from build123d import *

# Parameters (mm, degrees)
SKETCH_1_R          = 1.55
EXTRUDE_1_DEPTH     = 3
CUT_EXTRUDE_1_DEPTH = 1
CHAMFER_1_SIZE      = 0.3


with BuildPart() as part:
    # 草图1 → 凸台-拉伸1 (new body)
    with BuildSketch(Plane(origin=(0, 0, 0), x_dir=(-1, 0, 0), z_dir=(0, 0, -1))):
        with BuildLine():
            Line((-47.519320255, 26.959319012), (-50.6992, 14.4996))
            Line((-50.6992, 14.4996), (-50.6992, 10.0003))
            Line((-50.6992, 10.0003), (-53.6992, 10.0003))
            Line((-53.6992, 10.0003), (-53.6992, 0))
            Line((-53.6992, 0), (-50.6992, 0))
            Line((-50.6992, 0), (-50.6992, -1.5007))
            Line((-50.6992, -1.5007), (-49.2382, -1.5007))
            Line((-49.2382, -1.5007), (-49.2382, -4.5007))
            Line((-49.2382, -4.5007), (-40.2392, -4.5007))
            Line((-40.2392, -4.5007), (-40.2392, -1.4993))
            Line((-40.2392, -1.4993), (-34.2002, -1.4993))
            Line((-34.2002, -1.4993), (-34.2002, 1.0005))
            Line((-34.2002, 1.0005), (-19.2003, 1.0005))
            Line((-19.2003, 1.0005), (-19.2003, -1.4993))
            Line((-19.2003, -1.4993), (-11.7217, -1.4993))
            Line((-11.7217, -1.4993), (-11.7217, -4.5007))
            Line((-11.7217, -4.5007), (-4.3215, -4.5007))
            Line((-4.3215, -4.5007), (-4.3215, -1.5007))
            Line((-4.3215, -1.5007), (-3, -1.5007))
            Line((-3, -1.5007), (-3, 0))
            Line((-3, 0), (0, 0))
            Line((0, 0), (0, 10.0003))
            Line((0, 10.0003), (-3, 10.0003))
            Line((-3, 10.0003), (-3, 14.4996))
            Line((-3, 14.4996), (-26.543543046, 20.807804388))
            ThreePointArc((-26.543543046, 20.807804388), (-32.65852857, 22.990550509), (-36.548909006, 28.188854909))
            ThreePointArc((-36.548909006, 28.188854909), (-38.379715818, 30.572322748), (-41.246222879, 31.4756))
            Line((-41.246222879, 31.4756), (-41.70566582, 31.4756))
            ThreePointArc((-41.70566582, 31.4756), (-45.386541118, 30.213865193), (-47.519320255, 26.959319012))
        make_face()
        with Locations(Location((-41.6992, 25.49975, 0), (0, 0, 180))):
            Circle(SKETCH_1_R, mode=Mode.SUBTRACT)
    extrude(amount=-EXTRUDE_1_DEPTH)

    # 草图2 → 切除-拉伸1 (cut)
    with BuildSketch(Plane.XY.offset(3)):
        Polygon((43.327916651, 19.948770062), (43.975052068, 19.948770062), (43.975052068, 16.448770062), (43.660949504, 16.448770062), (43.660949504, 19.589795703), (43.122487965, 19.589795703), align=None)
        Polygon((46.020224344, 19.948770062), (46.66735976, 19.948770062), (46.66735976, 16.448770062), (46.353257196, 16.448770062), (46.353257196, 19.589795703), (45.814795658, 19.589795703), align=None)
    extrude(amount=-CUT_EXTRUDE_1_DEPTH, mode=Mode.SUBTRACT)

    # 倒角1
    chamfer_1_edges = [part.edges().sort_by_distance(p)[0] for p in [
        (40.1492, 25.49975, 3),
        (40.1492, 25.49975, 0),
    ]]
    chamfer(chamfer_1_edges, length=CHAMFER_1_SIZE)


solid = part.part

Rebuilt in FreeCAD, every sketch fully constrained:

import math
import FreeCAD as App
import Part
import Sketcher
from FreeCAD import Vector
Q = App.Units.Quantity


def edges_at(feature, points):
    """Names of the edges that pass closest to the given points."""
    edges = feature.Shape.Edges
    near = lambda p: min(range(len(edges)), key=lambda i: edges[i].distToShape(Part.Vertex(*p))[0])
    return sorted({f"Edge{near(p) + 1}" for p in points})


def add_polygon(sketch, points):
    """Adds a closed chain of lines whose ends are joined by coincident constraints."""
    first, n = sketch.GeometryCount, len(points)
    for a, b in zip(points, points[1:] + points[:1]):
        sketch.addGeometry(Part.LineSegment(App.Vector(*a, 0), App.Vector(*b, 0)), False)
    for i in range(n):
        sketch.addConstraint(Sketcher.Constraint("Coincident", first + i, 2, first + (i + 1) % n, 1))

doc = App.newDocument("Part")
body = doc.addObject("PartDesign::Body", "Body")

# Sketch on XY plane
sketch1 = body.newObject("Sketcher::SketchObject", "Sketch")
sketch1.AttachmentSupport = (doc.getObject("XY_Plane"), [""])
sketch1.MapMode = "FlatFace"
sketch1.addGeometry(Part.LineSegment(Vector(47.52, 26.96, 0), Vector(50.7, 14.5, 0)), False)
sketch1.addGeometry(Part.LineSegment(Vector(50.7, 14.5, 0), Vector(50.7, 10, 0)), False)
sketch1.addGeometry(Part.LineSegment(Vector(50.7, 10, 0), Vector(53.7, 10, 0)), False)
sketch1.addGeometry(Part.LineSegment(Vector(53.7, 10, 0), Vector(53.7, 0, 0)), False)
sketch1.addGeometry(Part.LineSegment(Vector(53.7, 0, 0), Vector(50.7, 0, 0)), False)
sketch1.addGeometry(Part.LineSegment(Vector(50.7, 0, 0), Vector(50.7, -1.5, 0)), False)
sketch1.addGeometry(Part.LineSegment(Vector(50.7, -1.5, 0), Vector(49.24, -1.5, 0)), False)
sketch1.addGeometry(Part.LineSegment(Vector(49.24, -1.5, 0), Vector(49.24, -4.5, 0)), False)
sketch1.addGeometry(Part.LineSegment(Vector(49.24, -4.5, 0), Vector(40.24, -4.5, 0)), False)
sketch1.addGeometry(Part.LineSegment(Vector(40.24, -4.5, 0), Vector(40.24, -1.5, 0)), False)
sketch1.addGeometry(Part.LineSegment(Vector(40.24, -1.5, 0), Vector(34.2, -1.5, 0)), False)
sketch1.addGeometry(Part.LineSegment(Vector(34.2, -1.5, 0), Vector(34.2, 1, 0)), False)
sketch1.addGeometry(Part.LineSegment(Vector(34.2, 1, 0), Vector(19.2, 1, 0)), False)
sketch1.addGeometry(Part.LineSegment(Vector(19.2, 1, 0), Vector(19.2, -1.5, 0)), False)
sketch1.addGeometry(Part.LineSegment(Vector(19.2, -1.5, 0), Vector(11.72, -1.5, 0)), False)
sketch1.addGeometry(Part.LineSegment(Vector(11.72, -1.5, 0), Vector(11.72, -4.5, 0)), False)
sketch1.addGeometry(Part.LineSegment(Vector(11.72, -4.5, 0), Vector(4.32, -4.5, 0)), False)
sketch1.addGeometry(Part.LineSegment(Vector(4.32, -4.5, 0), Vector(4.32, -1.5, 0)), False)
sketch1.addGeometry(Part.LineSegment(Vector(4.32, -1.5, 0), Vector(3, -1.5, 0)), False)
sketch1.addGeometry(Part.LineSegment(Vector(3, -1.5, 0), Vector(3, 0, 0)), False)
sketch1.addGeometry(Part.LineSegment(Vector(3, 0, 0), Vector(0, 0, 0)), False)
sketch1.addGeometry(Part.LineSegment(Vector(0, 0, 0), Vector(0, 10, 0)), False)
sketch1.addGeometry(Part.LineSegment(Vector(0, 10, 0), Vector(3, 10, 0)), False)
sketch1.addGeometry(Part.LineSegment(Vector(3, 10, 0), Vector(3, 14.5, 0)), False)
sketch1.addGeometry(Part.LineSegment(Vector(3, 14.5, 0), Vector(26.54, 20.81, 0)), False)
sketch1.addGeometry(Part.ArcOfCircle(Part.Circle(Vector(25.98, 32.04, 0), Vector(0, 0, 1), 11.25), math.radians(-87), math.radians(-20)), False)
sketch1.addGeometry(Part.ArcOfCircle(Part.Circle(Vector(41.25, 26.48, 0), Vector(0, 0, 1), 5), math.radians(90), math.radians(160)), False)
sketch1.addGeometry(Part.LineSegment(Vector(41.25, 31.48, 0), Vector(41.71, 31.48, 0)), False)
sketch1.addGeometry(Part.ArcOfCircle(Part.Circle(Vector(41.71, 25.48, 0), Vector(0, 0, 1), 6), math.radians(14), math.radians(90)), False)
sketch1.addGeometry(Part.Circle(Vector(41.7, 25.5, 0), Vector(0, 0, 1), 1.55), False)
sketch1.addConstraint(Sketcher.Constraint("Coincident", 0, 2, 1, 1))
sketch1.addConstraint(Sketcher.Constraint("Coincident", 1, 2, 2, 1))
sketch1.addConstraint(Sketcher.Constraint("Coincident", 2, 2, 3, 1))
sketch1.addConstraint(Sketcher.Constraint("Coincident", 3, 2, 4, 1))
sketch1.addConstraint(Sketcher.Constraint("Coincident", 4, 2, 5, 1))
sketch1.addConstraint(Sketcher.Constraint("Coincident", 5, 2, 6, 1))
sketch1.addConstraint(Sketcher.Constraint("Coincident", 6, 2, 7, 1))
sketch1.addConstraint(Sketcher.Constraint("Coincident", 7, 2, 8, 1))
sketch1.addConstraint(Sketcher.Constraint("Coincident", 8, 2, 9, 1))
sketch1.addConstraint(Sketcher.Constraint("Coincident", 9, 2, 10, 1))
sketch1.addConstraint(Sketcher.Constraint("Coincident", 10, 2, 11, 1))
sketch1.addConstraint(Sketcher.Constraint("Coincident", 11, 2, 12, 1))
sketch1.addConstraint(Sketcher.Constraint("Coincident", 12, 2, 13, 1))
sketch1.addConstraint(Sketcher.Constraint("Coincident", 13, 2, 14, 1))
sketch1.addConstraint(Sketcher.Constraint("Coincident", 14, 2, 15, 1))
sketch1.addConstraint(Sketcher.Constraint("Coincident", 15, 2, 16, 1))
sketch1.addConstraint(Sketcher.Constraint("Coincident", 16, 2, 17, 1))
sketch1.addConstraint(Sketcher.Constraint("Coincident", 17, 2, 18, 1))
sketch1.addConstraint(Sketcher.Constraint("Coincident", 18, 2, 19, 1))
sketch1.addConstraint(Sketcher.Constraint("Coincident", 19, 2, 20, 1))
sketch1.addConstraint(Sketcher.Constraint("Coincident", 20, 2, 21, 1))
sketch1.addConstraint(Sketcher.Constraint("Coincident", 21, 2, 22, 1))
sketch1.addConstraint(Sketcher.Constraint("Coincident", 22, 2, 23, 1))
sketch1.addConstraint(Sketcher.Constraint("Coincident", 23, 2, 24, 1))
sketch1.addConstraint(Sketcher.Constraint("Coincident", 24, 2, 25, 1))
sketch1.addConstraint(Sketcher.Constraint("Tangent", 25, 2, 26, 2))
sketch1.addConstraint(Sketcher.Constraint("Tangent", 26, 1, 27, 1))
sketch1.addConstraint(Sketcher.Constraint("Tangent", 27, 2, 28, 2))
sketch1.addConstraint(Sketcher.Constraint("Tangent", 28, 1, 0, 1))
sketch1.addConstraint(Sketcher.Constraint("Vertical", 1))
sketch1.addConstraint(Sketcher.Constraint("Horizontal", 2))
sketch1.addConstraint(Sketcher.Constraint("Vertical", 3))
sketch1.addConstraint(Sketcher.Constraint("Horizontal", 4))
sketch1.addConstraint(Sketcher.Constraint("Vertical", 5))
sketch1.addConstraint(Sketcher.Constraint("Horizontal", 6))
sketch1.addConstraint(Sketcher.Constraint("Vertical", 7))
sketch1.addConstraint(Sketcher.Constraint("Horizontal", 8))
sketch1.addConstraint(Sketcher.Constraint("Vertical", 9))
sketch1.addConstraint(Sketcher.Constraint("Horizontal", 10))
sketch1.addConstraint(Sketcher.Constraint("Vertical", 11))
sketch1.addConstraint(Sketcher.Constraint("Horizontal", 12))
sketch1.addConstraint(Sketcher.Constraint("Vertical", 13))
sketch1.addConstraint(Sketcher.Constraint("Horizontal", 14))
sketch1.addConstraint(Sketcher.Constraint("Vertical", 15))
sketch1.addConstraint(Sketcher.Constraint("Horizontal", 16))
sketch1.addConstraint(Sketcher.Constraint("Vertical", 17))
sketch1.addConstraint(Sketcher.Constraint("Horizontal", 18))
sketch1.addConstraint(Sketcher.Constraint("Vertical", 19))
sketch1.addConstraint(Sketcher.Constraint("Horizontal", 20))
sketch1.addConstraint(Sketcher.Constraint("Vertical", 21))
sketch1.addConstraint(Sketcher.Constraint("Horizontal", 22))
sketch1.addConstraint(Sketcher.Constraint("Vertical", 23))
sketch1.addConstraint(Sketcher.Constraint("Horizontal", 27))
sketch1.addConstraint(Sketcher.Constraint("Coincident", 20, 2, -1, 1))
sketch1.addConstraint(Sketcher.Constraint("PointOnObject", 3, 2, -1))
sketch1.addConstraint(Sketcher.Constraint("Horizontal", 10, 2, 13, 2))
sketch1.addConstraint(Sketcher.Constraint("Horizontal", 8, 2, 15, 2))
sketch1.addConstraint(Sketcher.Constraint("Horizontal", 6, 2, 17, 2))
sketch1.addConstraint(Sketcher.Constraint("Horizontal", 2, 2, 21, 2))
sketch1.addConstraint(Sketcher.Constraint("Horizontal", 0, 2, 23, 2))
sketch1.addConstraint(Sketcher.Constraint("Vertical", 1, 2, 4, 2))
sketch1.addConstraint(Sketcher.Constraint("Vertical", 19, 2, 22, 2))
sketch1.addConstraint(Sketcher.Constraint("Equal", 4, 20))
sketch1.addConstraint(Sketcher.Constraint("Equal", 22, 7))
sketch1.addConstraint(Sketcher.Constraint("Radius", 26, Q("5 mm")))
sketch1.addConstraint(Sketcher.Constraint("Radius", 28, Q("6 mm")))
sketch1.addConstraint(Sketcher.Constraint("Diameter", 29, Q("3.1 mm")))
sketch1.addConstraint(Sketcher.Constraint("DistanceX", 2, 1, 2, 2, Q("3 mm")))
sketch1.addConstraint(Sketcher.Constraint("Radius", 25, Q("11.25 mm")))
sketch1.addConstraint(Sketcher.Constraint("DistanceX", 29, 3, 0, 2, Q("9 mm")))
sketch1.addConstraint(Sketcher.Constraint("DistanceX", 6, 2, 6, 1, Q("1.461 mm")))
sketch1.addConstraint(Sketcher.Constraint("DistanceX", 8, 2, 8, 1, Q("8.999 mm")))
sketch1.addConstraint(Sketcher.Constraint("DistanceX", 10, 2, 10, 1, Q("6.039 mm")))
sketch1.addConstraint(Sketcher.Constraint("Distance", 24, Q("24.374 mm")))
sketch1.addConstraint(Sketcher.Constraint("DistanceX", 12, 2, 12, 1, Q("14.9999 mm")))
sketch1.addConstraint(Sketcher.Constraint("DistanceX", 14, 2, 14, 1, Q("7.4786 mm")))
sketch1.addConstraint(Sketcher.Constraint("DistanceX", 16, 2, 16, 1, Q("7.4002 mm")))
sketch1.addConstraint(Sketcher.Constraint("DistanceX", 18, 2, 18, 1, Q("1.3215 mm")))
sketch1.addConstraint(Sketcher.Constraint("DistanceY", 1, 2, 1, 1, Q("4.4993 mm")))
sketch1.addConstraint(Sketcher.Constraint("DistanceY", 3, 2, 3, 1, Q("10.0003 mm")))
sketch1.addConstraint(Sketcher.Constraint("DistanceY", 5, 2, 5, 1, Q("1.5007 mm")))
sketch1.addConstraint(Sketcher.Constraint("DistanceY", 9, 1, 9, 2, Q("3.0014 mm")))
sketch1.addConstraint(Sketcher.Constraint("DistanceY", 11, 1, 11, 2, Q("2.4998 mm")))
sketch1.addConstraint(Sketcher.Constraint("DistanceY", 0, 2, 28, 3, Q("10.976 mm")))
sketch1.addConstraint(Sketcher.Constraint("Distance", 0, Q("12.859091 mm")))
sketch1.addConstraint(Sketcher.Constraint("DistanceX", 27, 1, 27, 2, Q("0.459443 mm")))
sketch1.addConstraint(Sketcher.Constraint("DistanceY", -1, 1, 25, 3, Q("32.043678 mm")))
sketch1.addConstraint(Sketcher.Constraint("DistanceY", -1, 1, 29, 3, Q("25.49975 mm")))
pad1 = body.newObject("PartDesign::Pad", "Pad")
pad1.Profile = sketch1
pad1.Length = 3

# Sketch on XY plane
sketch2 = body.newObject("Sketcher::SketchObject", "Sketch001")
sketch2.AttachmentSupport = (doc.getObject("XY_Plane"), [""])
sketch2.MapMode = "FlatFace"
sketch2.AttachmentOffset = App.Placement(Vector(0, 0, 3), App.Rotation())
add_polygon(sketch2, [(43.98, 19.95), (43.33, 19.95), (43.12, 19.59), (43.66, 19.59), (43.66, 16.45), (43.98, 16.45)])  # lines 0-5
add_polygon(sketch2, [(46.67, 19.95), (46.02, 19.95), (45.81, 19.59), (46.35, 19.59), (46.35, 16.45), (46.67, 16.45)])  # lines 6-11
sketch2.addConstraint(Sketcher.Constraint("Horizontal", 0))
sketch2.addConstraint(Sketcher.Constraint("Horizontal", 2))
sketch2.addConstraint(Sketcher.Constraint("Vertical", 3))
sketch2.addConstraint(Sketcher.Constraint("Horizontal", 4))
sketch2.addConstraint(Sketcher.Constraint("Vertical", 5))
sketch2.addConstraint(Sketcher.Constraint("Horizontal", 6))
sketch2.addConstraint(Sketcher.Constraint("Horizontal", 8))
sketch2.addConstraint(Sketcher.Constraint("Vertical", 9))
sketch2.addConstraint(Sketcher.Constraint("Horizontal", 10))
sketch2.addConstraint(Sketcher.Constraint("Vertical", 11))
sketch2.addConstraint(Sketcher.Constraint("Parallel", 1, 7))
sketch2.addConstraint(Sketcher.Constraint("Horizontal", 5, 2, 6, 2))
sketch2.addConstraint(Sketcher.Constraint("Horizontal", 2, 2, 7, 2))
sketch2.addConstraint(Sketcher.Constraint("Horizontal", 4, 2, 9, 2))
sketch2.addConstraint(Sketcher.Constraint("Equal", 0, 6))
sketch2.addConstraint(Sketcher.Constraint("Equal", 2, 8))
sketch2.addConstraint(Sketcher.Constraint("DistanceY", 5, 1, 5, 2, Q("3.5 mm")))
sketch2.addConstraint(Sketcher.Constraint("Distance", 1, Q("0.413598 mm")))
sketch2.addConstraint(Sketcher.Constraint("DistanceX", 2, 1, 2, 2, Q("0.538462 mm")))
sketch2.addConstraint(Sketcher.Constraint("DistanceX", 0, 2, 0, 1, Q("0.647135 mm")))
sketch2.addConstraint(Sketcher.Constraint("DistanceX", 4, 1, 4, 2, Q("0.314103 mm")))
sketch2.addConstraint(Sketcher.Constraint("DistanceY", -1, 1, 0, 2, Q("19.94877 mm")))
sketch2.addConstraint(Sketcher.Constraint("DistanceX", -1, 1, 2, 2, Q("43.66095 mm")))
sketch2.addConstraint(Sketcher.Constraint("DistanceX", -1, 1, 10, 2, Q("46.66736 mm")))
pocket1 = body.newObject("PartDesign::Pocket", "Pocket")
pocket1.Profile = sketch2
pocket1.Length = 1
doc.recompute()

chamfer = body.newObject("PartDesign::Chamfer", "Chamfer")
chamfer.Base = (pocket1, edges_at(pocket1, [(40.149, 25.5, 3), (40.149, 25.5, 0)]))
chamfer.Size = 0.3

doc.recompute()
